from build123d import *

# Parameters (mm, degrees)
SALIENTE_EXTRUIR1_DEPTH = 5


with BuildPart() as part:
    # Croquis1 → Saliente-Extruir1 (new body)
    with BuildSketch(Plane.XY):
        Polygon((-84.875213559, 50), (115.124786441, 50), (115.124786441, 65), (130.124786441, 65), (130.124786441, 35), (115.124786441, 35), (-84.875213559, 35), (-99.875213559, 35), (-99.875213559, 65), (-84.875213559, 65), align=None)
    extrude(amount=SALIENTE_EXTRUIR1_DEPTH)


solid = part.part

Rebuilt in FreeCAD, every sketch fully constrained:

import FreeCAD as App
import Part
import Sketcher
Q = App.Units.Quantity

doc = App.newDocument("Part")
body = doc.addObject("PartDesign::Body", "Body")

# Sketch on XY plane
sketch1 = body.newObject("Sketcher::SketchObject", "Sketch")
sketch1.AttachmentSupport = (doc.getObject("XY_Plane"), [""])
sketch1.MapMode = "FlatFace"
sketch1.addGeometry([
    Part.LineSegment(App.Vector(115, 50, 0), App.Vector(-85, 50, 0)),  # 0
    Part.LineSegment(App.Vector(-85, 50, 0), App.Vector(-85, 65, 0)),  # 1
    Part.LineSegment(App.Vector(-85, 65, 0), App.Vector(-100, 65, 0)),  # 2
    Part.LineSegment(App.Vector(-100, 65, 0), App.Vector(-100, 35, 0)),  # 3
    Part.LineSegment(App.Vector(-100, 35, 0), App.Vector(130, 35, 0)),  # 4
    Part.LineSegment(App.Vector(130, 35, 0), App.Vector(130, 65, 0)),  # 5
    Part.LineSegment(App.Vector(130, 65, 0), App.Vector(115, 65, 0)),  # 6
    Part.LineSegment(App.Vector(115, 65, 0), App.Vector(115, 50, 0)),  # 7
], False)
sketch1.addConstraint([
    Sketcher.Constraint("Coincident", 0, 2, 1, 1),
    Sketcher.Constraint("Coincident", 1, 2, 2, 1),
    Sketcher.Constraint("Coincident", 2, 2, 3, 1),
    Sketcher.Constraint("Coincident", 3, 2, 4, 1),
    Sketcher.Constraint("Coincident", 4, 2, 5, 1),
    Sketcher.Constraint("Coincident", 5, 2, 6, 1),
    Sketcher.Constraint("Coincident", 6, 2, 7, 1),
    Sketcher.Constraint("Coincident", 7, 2, 0, 1),
    Sketcher.Constraint("Horizontal", 0),
    Sketcher.Constraint("Vertical", 1),
    Sketcher.Constraint("Horizontal", 2),
    Sketcher.Constraint("Vertical", 3),
    Sketcher.Constraint("Horizontal", 4),
    Sketcher.Constraint("Vertical", 5),
    Sketcher.Constraint("Horizontal", 6),
    Sketcher.Constraint("Vertical", 7),
    Sketcher.Constraint("Horizontal", 2, 2, 5, 2),
    Sketcher.Constraint("Equal", 2, 6),
    Sketcher.Constraint("Equal", 6, 1),
    Sketcher.Constraint("DistanceX", 0, 2, 0, 1, Q("200 mm")),
    Sketcher.Constraint("DistanceX", 2, 2, 2, 1, Q("15 mm")),
    Sketcher.Constraint("DistanceY", 3, 2, 3, 1, Q("30 mm")),
    Sketcher.Constraint("DistanceY", -1, 1, 0, 2, Q("50 mm")),
    Sketcher.Constraint("DistanceX", 0, 2, -1, 1, Q("84.875214 mm")),
])
pad1 = body.newObject("PartDesign::Pad", "Pad")
pad1.Profile = sketch1
pad1.Length = 5

doc.recompute()
